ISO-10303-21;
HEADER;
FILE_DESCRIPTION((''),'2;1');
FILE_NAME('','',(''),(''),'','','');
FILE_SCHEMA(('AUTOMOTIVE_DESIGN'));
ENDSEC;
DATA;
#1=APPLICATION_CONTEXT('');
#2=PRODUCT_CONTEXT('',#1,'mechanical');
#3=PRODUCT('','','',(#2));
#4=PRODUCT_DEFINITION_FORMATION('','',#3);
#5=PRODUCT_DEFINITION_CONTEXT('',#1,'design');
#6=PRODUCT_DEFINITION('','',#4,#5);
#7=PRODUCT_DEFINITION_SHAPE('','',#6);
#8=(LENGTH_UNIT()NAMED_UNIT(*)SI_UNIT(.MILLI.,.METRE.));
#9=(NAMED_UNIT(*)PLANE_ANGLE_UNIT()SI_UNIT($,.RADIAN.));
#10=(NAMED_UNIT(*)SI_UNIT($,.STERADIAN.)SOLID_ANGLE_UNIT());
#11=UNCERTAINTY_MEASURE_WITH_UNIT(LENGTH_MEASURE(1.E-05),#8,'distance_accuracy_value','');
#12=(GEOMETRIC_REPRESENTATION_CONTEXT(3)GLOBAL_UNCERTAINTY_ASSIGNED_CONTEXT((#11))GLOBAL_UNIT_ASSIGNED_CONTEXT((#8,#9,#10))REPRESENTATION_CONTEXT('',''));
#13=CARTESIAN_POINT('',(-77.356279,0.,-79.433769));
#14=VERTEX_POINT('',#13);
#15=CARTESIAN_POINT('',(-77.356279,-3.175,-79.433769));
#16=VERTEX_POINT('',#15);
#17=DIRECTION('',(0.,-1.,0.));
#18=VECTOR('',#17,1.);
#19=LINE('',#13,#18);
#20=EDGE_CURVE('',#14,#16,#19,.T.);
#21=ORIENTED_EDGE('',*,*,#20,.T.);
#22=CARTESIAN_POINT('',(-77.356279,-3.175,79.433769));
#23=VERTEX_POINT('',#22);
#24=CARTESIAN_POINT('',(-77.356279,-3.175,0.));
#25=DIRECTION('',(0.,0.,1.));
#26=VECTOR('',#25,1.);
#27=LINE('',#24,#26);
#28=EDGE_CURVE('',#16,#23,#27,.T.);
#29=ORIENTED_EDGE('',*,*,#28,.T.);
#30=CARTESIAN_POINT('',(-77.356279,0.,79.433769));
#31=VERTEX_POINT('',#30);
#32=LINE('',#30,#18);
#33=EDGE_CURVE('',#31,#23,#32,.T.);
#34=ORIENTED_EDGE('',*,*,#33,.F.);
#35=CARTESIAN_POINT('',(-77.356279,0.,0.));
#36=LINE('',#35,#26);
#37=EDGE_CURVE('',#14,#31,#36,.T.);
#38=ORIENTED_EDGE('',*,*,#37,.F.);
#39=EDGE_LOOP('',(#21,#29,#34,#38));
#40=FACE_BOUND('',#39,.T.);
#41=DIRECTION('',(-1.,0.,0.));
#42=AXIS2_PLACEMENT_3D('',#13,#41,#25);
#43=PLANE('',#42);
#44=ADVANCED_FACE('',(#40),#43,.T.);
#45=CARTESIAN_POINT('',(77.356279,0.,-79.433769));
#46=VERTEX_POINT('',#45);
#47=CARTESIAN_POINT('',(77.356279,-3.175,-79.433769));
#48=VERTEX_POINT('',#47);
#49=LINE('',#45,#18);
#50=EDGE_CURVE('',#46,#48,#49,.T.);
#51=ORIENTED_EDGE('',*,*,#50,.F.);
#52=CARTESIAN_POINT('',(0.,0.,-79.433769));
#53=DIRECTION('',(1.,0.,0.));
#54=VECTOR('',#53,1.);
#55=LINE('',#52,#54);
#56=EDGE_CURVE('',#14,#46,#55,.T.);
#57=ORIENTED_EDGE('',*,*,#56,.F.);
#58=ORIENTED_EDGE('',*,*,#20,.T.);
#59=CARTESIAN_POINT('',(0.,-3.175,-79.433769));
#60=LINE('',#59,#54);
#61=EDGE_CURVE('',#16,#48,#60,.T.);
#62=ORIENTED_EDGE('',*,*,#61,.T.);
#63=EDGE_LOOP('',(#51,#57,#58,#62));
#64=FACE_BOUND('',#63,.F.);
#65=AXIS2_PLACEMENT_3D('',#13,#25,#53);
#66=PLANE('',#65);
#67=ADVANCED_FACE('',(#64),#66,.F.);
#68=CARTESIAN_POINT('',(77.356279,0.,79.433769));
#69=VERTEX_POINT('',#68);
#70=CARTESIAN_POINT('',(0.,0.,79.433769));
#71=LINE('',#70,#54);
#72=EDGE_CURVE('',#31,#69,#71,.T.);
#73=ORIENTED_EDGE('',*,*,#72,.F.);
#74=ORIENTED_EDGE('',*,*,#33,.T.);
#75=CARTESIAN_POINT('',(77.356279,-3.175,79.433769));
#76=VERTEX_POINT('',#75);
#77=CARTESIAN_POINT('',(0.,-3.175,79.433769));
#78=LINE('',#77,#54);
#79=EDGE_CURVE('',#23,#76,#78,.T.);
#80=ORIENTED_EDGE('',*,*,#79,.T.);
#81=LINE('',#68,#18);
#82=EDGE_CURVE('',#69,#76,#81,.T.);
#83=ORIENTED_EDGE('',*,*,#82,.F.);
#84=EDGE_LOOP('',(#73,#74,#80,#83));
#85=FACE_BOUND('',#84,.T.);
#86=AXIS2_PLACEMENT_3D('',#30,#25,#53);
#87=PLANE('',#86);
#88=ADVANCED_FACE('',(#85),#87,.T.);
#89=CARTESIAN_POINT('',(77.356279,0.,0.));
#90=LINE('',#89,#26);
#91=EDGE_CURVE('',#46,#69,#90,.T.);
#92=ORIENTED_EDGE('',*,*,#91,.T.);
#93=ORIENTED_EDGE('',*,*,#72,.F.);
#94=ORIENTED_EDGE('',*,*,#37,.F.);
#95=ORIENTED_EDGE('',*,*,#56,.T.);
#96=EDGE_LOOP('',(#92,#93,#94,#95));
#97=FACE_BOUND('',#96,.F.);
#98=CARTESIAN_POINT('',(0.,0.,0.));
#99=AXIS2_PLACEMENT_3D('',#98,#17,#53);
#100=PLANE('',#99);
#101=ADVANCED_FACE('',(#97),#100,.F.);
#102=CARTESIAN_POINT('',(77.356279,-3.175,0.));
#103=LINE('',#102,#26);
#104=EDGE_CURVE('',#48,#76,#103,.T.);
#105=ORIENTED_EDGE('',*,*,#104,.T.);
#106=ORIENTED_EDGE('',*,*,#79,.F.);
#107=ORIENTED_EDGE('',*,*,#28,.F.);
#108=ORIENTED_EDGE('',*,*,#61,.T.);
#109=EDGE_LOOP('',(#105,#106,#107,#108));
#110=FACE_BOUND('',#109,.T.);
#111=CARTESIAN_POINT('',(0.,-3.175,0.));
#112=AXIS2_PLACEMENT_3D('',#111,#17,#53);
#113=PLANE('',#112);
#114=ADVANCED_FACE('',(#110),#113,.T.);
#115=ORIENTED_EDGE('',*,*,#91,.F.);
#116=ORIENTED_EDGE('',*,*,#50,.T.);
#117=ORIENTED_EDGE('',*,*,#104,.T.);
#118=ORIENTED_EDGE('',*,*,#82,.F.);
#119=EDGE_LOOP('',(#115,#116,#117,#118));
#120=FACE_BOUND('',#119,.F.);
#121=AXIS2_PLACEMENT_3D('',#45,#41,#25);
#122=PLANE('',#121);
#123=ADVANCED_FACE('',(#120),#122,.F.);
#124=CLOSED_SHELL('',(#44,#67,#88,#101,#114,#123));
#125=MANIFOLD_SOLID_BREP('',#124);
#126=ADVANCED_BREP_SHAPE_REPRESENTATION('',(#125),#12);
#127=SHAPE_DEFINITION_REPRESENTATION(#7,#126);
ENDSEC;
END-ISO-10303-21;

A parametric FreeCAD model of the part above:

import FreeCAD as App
import Part
import Sketcher
from FreeCAD import Vector
Q = App.Units.Quantity


def add_polygon(sketch, points):
    """Adds a closed chain of lines whose ends are joined by coincident constraints."""
    first, n = sketch.GeometryCount, len(points)
    for a, b in zip(points, points[1:] + points[:1]):
        sketch.addGeometry(Part.LineSegment(App.Vector(*a, 0), App.Vector(*b, 0)), False)
    for i in range(n):
        sketch.addConstraint(Sketcher.Constraint("Coincident", first + i, 2, first + (i + 1) % n, 1))

doc = App.newDocument("Part")
body = doc.addObject("PartDesign::Body", "Body")

# Sketch on XZ plane
sketch1 = doc.addObject("Sketcher::SketchObject", "Sketch")
body.addObject(sketch1)
sketch1.AttachmentSupport = (doc.XZ_Plane, [""])
sketch1.MapMode = "FlatFace"
add_polygon(sketch1, [(-77, 79), (-77, -79), (77, -79), (77, 79)])  # lines 0-3
sketch1.addConstraint([
    Sketcher.Constraint("Vertical", 0),
    Sketcher.Constraint("Horizontal", 1),
    Sketcher.Constraint("Vertical", 2),
    Sketcher.Constraint("Horizontal", 3),
    Sketcher.Constraint("Symmetric", 0, 2, 2, 2, -1, 1),
    Sketcher.Constraint("DistanceX", 1, 1, 1, 2, Q("154.712558 mm")),
    Sketcher.Constraint("DistanceY", 0, 2, 0, 1, Q("158.867538 mm")),
])
pad1 = doc.addObject("PartDesign::Pad", "Pad")
body.addObject(pad1)
pad1.Profile = sketch1
pad1.Length = Q("0.125 in")

doc.recompute()
